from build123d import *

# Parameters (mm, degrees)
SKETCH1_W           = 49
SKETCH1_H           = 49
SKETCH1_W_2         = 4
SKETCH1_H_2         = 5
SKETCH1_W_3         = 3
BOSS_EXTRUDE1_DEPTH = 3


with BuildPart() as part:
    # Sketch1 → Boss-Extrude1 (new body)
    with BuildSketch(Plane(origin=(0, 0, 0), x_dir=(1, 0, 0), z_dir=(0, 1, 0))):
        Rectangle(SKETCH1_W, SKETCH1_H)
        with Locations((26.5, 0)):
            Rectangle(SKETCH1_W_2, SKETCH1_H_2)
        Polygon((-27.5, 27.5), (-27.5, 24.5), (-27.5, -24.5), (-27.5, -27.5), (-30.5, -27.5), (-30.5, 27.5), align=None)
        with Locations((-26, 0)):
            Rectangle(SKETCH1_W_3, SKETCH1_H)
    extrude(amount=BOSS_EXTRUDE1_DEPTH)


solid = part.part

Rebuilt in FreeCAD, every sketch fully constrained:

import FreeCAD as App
import Part
import Sketcher
from FreeCAD import Vector
Q = App.Units.Quantity

doc = App.newDocument("Part")
body = doc.addObject("PartDesign::Body", "Body")

sketch1 = body.newObject("Sketcher::SketchObject", "Sketch")
sketch1.AttachmentSupport = (doc.getObject("XZ_Plane"), [""])
sketch1.MapMode = "FlatFace"
sketch1.addGeometry(Part.LineSegment(Vector(24.5, 24.5, 0), Vector(24.5, 2.5, 0)), False)
sketch1.addGeometry(Part.LineSegment(Vector(24.5, 2.5, 0), Vector(28.5, 2.5, 0)), False)
sketch1.addGeometry(Part.LineSegment(Vector(28.5, 2.5, 0), Vector(28.5, -2.5, 0)), False)
sketch1.addGeometry(Part.LineSegment(Vector(28.5, -2.5, 0), Vector(24.5, -2.5, 0)), False)
sketch1.addGeometry(Part.LineSegment(Vector(24.5, -2.5, 0), Vector(24.5, -24.5, 0)), False)
sketch1.addGeometry(Part.LineSegment(Vector(24.5, -24.5, 0), Vector(-27.5, -24.5, 0)), False)
sketch1.addGeometry(Part.LineSegment(Vector(-27.5, -24.5, 0), Vector(-27.5, -27.5, 0)), False)
sketch1.addGeometry(Part.LineSegment(Vector(-27.5, -27.5, 0), Vector(-30.5, -27.5, 0)), False)
sketch1.addGeometry(Part.LineSegment(Vector(-30.5, -27.5, 0), Vector(-30.5, 27.5, 0)), False)
sketch1.addGeometry(Part.LineSegment(Vector(-30.5, 27.5, 0), Vector(-27.5, 27.5, 0)), False)
sketch1.addGeometry(Part.LineSegment(Vector(-27.5, 27.5, 0), Vector(-27.5, 24.5, 0)), False)
sketch1.addGeometry(Part.LineSegment(Vector(-27.5, 24.5, 0), Vector(24.5, 24.5, 0)), False)
sketch1.addConstraint(Sketcher.Constraint("Coincident", 0, 2, 1, 1))
sketch1.addConstraint(Sketcher.Constraint("Coincident", 1, 2, 2, 1))
sketch1.addConstraint(Sketcher.Constraint("Coincident", 2, 2, 3, 1))
sketch1.addConstraint(Sketcher.Constraint("Coincident", 3, 2, 4, 1))
sketch1.addConstraint(Sketcher.Constraint("Coincident", 4, 2, 5, 1))
sketch1.addConstraint(Sketcher.Constraint("Coincident", 5, 2, 6, 1))
sketch1.addConstraint(Sketcher.Constraint("Coincident", 6, 2, 7, 1))
sketch1.addConstraint(Sketcher.Constraint("Coincident", 7, 2, 8, 1))
sketch1.addConstraint(Sketcher.Constraint("Coincident", 8, 2, 9, 1))
sketch1.addConstraint(Sketcher.Constraint("Coincident", 9, 2, 10, 1))
sketch1.addConstraint(Sketcher.Constraint("Coincident", 10, 2, 11, 1))
sketch1.addConstraint(Sketcher.Constraint("Coincident", 11, 2, 0, 1))
sketch1.addConstraint(Sketcher.Constraint("Vertical", 0))
sketch1.addConstraint(Sketcher.Constraint("Horizontal", 1))
sketch1.addConstraint(Sketcher.Constraint("Vertical", 2))
sketch1.addConstraint(Sketcher.Constraint("Horizontal", 3))
sketch1.addConstraint(Sketcher.Constraint("Vertical", 4))
sketch1.addConstraint(Sketcher.Constraint("Horizontal", 5))
sketch1.addConstraint(Sketcher.Constraint("Vertical", 6))
sketch1.addConstraint(Sketcher.Constraint("Horizontal", 7))
sketch1.addConstraint(Sketcher.Constraint("Vertical", 8))
sketch1.addConstraint(Sketcher.Constraint("Horizontal", 9))
sketch1.addConstraint(Sketcher.Constraint("Vertical", 10))
sketch1.addConstraint(Sketcher.Constraint("Horizontal", 11))
sketch1.addConstraint(Sketcher.Constraint("Symmetric", 0, 2, 3, 2, -1))
sketch1.addConstraint(Sketcher.Constraint("Symmetric", 6, 2, 9, 2, -1))
sketch1.addConstraint(Sketcher.Constraint("Equal", 0, 4))
sketch1.addConstraint(Sketcher.Constraint("Equal", 9, 6))
sketch1.addConstraint(Sketcher.Constraint("DistanceX", 1, 1, 1, 2, Q("4 mm")))
sketch1.addConstraint(Sketcher.Constraint("DistanceX", 5, 2, 5, 1, Q("52 mm")))
sketch1.addConstraint(Sketcher.Constraint("DistanceX", 7, 2, 7, 1, Q("3 mm")))
sketch1.addConstraint(Sketcher.Constraint("DistanceY", 0, 2, 0, 1, Q("22 mm")))
sketch1.addConstraint(Sketcher.Constraint("DistanceY", 2, 2, 2, 1, Q("5 mm")))
sketch1.addConstraint(Sketcher.Constraint("DistanceX", -1, 1, 0, 2, Q("24.5 mm")))
pad1 = body.newObject("PartDesign::Pad", "Pad")
pad1.Profile = sketch1
pad1.Length = 3
pad1.Reversed = True

doc.recompute()
